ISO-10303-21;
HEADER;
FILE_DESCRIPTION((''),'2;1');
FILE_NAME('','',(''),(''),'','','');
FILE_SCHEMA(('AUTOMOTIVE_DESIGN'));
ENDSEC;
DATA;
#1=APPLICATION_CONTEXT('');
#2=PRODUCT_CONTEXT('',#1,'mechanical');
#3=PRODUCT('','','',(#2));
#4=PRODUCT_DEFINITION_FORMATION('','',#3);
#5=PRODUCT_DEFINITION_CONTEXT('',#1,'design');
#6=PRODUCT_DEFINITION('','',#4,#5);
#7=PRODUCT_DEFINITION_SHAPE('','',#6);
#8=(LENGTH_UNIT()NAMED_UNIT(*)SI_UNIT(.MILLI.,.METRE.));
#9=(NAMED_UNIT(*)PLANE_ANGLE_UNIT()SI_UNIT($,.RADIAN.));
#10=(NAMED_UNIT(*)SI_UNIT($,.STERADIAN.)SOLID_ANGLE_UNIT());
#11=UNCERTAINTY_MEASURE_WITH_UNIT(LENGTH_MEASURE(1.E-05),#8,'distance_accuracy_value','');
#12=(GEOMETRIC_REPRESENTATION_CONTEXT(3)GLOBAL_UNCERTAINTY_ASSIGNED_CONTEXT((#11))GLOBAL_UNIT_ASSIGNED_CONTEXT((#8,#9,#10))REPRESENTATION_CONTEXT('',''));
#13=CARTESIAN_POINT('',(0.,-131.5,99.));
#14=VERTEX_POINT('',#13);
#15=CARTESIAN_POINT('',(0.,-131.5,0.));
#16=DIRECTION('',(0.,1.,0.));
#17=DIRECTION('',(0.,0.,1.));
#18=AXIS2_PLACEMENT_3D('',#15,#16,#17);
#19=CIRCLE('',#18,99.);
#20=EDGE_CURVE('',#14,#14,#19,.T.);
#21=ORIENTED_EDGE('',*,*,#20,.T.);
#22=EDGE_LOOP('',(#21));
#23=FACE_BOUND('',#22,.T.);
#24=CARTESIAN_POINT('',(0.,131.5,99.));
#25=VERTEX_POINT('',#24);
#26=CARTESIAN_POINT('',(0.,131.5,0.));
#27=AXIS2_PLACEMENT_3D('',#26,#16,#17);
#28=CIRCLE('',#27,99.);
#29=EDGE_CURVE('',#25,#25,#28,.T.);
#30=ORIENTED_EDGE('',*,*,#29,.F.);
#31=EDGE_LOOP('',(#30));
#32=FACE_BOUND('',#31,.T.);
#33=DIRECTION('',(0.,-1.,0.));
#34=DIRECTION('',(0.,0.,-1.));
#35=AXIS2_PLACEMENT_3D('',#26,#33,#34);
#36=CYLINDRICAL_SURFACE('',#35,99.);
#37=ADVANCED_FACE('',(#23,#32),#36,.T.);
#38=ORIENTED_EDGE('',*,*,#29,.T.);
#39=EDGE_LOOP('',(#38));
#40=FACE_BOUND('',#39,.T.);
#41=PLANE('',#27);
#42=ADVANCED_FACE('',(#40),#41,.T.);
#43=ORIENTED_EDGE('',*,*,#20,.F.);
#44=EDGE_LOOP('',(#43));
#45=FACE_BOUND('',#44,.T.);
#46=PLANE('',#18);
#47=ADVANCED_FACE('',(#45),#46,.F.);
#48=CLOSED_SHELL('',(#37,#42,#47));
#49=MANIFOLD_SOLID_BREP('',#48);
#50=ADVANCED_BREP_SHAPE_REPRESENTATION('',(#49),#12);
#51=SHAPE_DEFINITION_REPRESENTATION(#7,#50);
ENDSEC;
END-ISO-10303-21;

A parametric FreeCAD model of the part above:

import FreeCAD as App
import Part
import Sketcher
from FreeCAD import Vector
Q = App.Units.Quantity

doc = App.newDocument("Part")
body = doc.addObject("PartDesign::Body", "Body")

# Sketch on XZ plane
sketch1 = body.newObject("Sketcher::SketchObject", "Sketch")
sketch1.AttachmentSupport = (doc.getObject("XZ_Plane"), [""])
sketch1.MapMode = "FlatFace"
sketch1.addGeometry(Part.Circle(Vector(0, 0, 0), Vector(0, 0, 1), 99), False)
sketch1.addConstraint([
    Sketcher.Constraint("Coincident", 0, 3, -1, 1),
    Sketcher.Constraint("Diameter", 0, Q("198 mm")),
])
pad1 = body.newObject("PartDesign::Pad", "Pad")
pad1.Profile = sketch1
pad1.Length = 263
pad1.Midplane = True

doc.recompute()
